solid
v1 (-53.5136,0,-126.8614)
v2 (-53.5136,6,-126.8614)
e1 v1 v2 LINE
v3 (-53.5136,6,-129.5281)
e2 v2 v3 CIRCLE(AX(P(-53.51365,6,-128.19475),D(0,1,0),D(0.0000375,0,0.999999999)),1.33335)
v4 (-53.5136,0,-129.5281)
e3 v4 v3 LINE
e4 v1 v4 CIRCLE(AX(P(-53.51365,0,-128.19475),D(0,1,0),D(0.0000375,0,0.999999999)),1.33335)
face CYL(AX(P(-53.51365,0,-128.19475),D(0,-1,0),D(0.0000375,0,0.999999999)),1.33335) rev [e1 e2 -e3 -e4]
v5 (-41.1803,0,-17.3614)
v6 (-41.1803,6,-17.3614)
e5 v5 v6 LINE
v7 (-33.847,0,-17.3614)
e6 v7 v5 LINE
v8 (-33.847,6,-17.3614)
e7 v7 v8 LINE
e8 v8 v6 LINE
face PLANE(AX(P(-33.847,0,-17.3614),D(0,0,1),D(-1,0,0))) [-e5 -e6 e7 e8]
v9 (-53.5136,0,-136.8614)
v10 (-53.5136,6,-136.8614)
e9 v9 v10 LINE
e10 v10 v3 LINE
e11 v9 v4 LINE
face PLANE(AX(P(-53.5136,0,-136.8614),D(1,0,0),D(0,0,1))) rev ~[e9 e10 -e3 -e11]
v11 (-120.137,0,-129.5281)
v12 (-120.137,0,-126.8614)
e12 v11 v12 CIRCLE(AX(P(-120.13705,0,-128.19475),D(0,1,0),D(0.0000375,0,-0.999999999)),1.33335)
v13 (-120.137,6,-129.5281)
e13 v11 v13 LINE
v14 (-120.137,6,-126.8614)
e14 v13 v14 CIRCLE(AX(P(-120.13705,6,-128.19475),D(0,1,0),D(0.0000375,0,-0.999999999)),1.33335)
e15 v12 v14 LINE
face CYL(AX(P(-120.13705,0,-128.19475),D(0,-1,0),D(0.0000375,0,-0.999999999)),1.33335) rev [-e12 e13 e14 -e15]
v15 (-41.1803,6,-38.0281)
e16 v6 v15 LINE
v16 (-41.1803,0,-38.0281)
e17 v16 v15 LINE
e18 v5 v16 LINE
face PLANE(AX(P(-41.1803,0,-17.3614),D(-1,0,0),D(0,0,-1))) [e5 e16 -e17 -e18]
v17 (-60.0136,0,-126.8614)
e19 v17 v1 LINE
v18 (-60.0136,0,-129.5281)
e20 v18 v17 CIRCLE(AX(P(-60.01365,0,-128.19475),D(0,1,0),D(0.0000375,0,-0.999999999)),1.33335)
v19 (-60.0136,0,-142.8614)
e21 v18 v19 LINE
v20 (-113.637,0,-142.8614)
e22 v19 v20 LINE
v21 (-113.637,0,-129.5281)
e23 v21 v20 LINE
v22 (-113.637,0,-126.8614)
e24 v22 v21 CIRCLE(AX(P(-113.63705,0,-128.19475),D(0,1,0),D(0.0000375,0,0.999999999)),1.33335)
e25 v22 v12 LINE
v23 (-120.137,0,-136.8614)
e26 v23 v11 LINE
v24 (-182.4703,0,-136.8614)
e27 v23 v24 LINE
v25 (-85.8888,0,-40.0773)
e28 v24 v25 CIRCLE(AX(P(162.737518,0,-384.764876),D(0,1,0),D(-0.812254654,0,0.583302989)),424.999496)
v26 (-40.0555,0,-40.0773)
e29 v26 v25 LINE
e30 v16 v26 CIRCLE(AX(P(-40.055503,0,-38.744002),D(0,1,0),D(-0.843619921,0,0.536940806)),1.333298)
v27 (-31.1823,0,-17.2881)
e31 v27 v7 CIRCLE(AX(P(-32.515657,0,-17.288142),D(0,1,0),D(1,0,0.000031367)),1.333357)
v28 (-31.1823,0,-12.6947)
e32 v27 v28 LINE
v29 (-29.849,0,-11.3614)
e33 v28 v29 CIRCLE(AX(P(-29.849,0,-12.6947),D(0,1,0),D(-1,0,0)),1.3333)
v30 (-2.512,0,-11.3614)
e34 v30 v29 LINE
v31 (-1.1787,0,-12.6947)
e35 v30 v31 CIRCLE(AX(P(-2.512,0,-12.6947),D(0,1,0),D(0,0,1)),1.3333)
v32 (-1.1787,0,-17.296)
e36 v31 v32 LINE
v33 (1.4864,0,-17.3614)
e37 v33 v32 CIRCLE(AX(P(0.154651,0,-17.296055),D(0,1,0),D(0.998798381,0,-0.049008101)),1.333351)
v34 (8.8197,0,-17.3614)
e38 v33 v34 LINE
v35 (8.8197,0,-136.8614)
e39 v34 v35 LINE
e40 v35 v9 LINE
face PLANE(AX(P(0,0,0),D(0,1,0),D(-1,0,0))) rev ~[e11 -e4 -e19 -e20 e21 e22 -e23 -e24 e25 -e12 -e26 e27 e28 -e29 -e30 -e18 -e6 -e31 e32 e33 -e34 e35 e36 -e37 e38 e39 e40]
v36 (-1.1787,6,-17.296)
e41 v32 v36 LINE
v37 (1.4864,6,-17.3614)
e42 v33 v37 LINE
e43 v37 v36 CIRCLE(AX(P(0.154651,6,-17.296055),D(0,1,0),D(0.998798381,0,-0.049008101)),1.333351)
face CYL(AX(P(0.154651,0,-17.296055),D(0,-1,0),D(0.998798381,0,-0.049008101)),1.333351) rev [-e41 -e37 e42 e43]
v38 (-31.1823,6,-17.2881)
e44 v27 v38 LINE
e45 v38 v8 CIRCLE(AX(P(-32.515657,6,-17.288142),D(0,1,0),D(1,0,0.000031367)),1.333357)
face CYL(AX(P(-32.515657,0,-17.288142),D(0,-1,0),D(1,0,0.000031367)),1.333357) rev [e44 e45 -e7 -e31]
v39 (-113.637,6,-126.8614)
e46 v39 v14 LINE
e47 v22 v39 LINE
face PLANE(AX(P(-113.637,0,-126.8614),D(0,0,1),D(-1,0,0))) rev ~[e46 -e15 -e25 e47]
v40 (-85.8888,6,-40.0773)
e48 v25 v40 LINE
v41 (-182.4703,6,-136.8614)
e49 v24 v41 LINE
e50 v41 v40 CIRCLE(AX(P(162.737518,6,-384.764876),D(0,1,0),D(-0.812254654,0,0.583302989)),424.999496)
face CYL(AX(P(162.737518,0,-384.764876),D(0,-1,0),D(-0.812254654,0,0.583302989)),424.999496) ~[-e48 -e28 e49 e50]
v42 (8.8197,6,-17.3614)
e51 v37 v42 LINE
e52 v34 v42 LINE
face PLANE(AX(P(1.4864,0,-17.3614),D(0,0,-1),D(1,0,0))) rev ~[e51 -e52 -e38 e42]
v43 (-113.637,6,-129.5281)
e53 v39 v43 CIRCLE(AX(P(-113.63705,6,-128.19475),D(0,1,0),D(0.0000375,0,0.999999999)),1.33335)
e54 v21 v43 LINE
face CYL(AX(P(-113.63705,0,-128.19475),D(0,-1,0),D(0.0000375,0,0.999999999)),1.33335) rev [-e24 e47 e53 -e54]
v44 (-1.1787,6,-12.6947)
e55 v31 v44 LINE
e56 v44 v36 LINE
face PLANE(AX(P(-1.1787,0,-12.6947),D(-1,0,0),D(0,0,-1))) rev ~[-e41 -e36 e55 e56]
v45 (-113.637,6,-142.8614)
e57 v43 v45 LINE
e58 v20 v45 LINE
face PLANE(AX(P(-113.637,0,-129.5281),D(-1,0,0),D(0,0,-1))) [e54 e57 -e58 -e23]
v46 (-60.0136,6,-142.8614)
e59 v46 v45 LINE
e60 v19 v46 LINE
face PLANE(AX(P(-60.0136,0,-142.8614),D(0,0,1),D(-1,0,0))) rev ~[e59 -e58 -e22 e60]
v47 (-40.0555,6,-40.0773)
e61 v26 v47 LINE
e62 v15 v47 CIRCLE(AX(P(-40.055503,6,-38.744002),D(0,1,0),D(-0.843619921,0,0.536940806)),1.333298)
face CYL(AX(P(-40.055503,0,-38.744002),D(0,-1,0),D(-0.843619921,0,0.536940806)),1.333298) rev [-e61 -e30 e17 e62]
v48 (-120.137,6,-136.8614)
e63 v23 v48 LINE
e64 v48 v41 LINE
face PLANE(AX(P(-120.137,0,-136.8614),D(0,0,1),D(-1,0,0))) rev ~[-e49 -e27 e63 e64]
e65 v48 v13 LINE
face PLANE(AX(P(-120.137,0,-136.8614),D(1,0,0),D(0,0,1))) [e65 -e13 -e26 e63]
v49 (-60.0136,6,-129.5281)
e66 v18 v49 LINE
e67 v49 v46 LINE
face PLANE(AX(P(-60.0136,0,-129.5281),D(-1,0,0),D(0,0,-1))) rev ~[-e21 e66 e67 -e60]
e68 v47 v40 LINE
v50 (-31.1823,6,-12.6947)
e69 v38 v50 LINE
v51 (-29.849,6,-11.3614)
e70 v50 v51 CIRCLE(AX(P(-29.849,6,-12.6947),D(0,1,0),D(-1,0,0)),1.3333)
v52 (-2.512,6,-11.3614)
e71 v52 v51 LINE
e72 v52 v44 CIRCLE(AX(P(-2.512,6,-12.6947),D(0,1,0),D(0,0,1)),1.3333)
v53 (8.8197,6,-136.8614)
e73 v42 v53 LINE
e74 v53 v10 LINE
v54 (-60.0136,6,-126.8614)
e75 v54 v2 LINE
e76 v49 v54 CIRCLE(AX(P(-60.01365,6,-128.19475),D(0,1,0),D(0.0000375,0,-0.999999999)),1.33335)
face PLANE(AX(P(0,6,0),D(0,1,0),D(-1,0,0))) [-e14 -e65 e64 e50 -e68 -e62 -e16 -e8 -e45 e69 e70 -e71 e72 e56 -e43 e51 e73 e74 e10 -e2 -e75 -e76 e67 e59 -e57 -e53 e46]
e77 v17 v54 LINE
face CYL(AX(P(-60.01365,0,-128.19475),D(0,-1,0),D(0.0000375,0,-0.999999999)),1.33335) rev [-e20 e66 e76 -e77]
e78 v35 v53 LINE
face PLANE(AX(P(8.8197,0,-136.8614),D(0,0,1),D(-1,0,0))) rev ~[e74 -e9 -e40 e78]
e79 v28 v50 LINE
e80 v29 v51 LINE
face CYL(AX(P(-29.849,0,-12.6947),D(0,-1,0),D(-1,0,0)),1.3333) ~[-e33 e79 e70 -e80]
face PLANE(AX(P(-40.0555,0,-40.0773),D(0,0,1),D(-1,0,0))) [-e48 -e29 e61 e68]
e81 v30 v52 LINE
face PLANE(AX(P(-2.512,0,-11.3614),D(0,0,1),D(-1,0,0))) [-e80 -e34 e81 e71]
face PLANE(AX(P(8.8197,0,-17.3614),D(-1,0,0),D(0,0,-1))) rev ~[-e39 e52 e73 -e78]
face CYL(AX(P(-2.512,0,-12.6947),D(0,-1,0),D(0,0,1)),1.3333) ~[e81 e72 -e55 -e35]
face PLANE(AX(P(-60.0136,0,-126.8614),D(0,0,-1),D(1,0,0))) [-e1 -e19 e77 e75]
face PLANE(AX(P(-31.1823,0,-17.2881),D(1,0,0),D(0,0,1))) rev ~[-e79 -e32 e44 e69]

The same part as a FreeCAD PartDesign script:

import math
import FreeCAD as App
import Part
import Sketcher
Q = App.Units.Quantity

doc = App.newDocument("Part")
body = doc.addObject("PartDesign::Body", "Body")

# Sketch on XZ plane
sketch1 = doc.addObject("Sketcher::SketchObject", "Sketch")
body.addObject(sketch1)
sketch1.AttachmentSupport = (doc.XZ_Plane, [""])
sketch1.MapMode = "FlatFace"
sketch1.addGeometry([
    Part.ArcOfCircle(Part.Circle(App.Vector(0.2, -17.3, 0), App.Vector(0, 0, 1), 1.3), math.radians(180), math.radians(357)),  # 0
    Part.LineSegment(App.Vector(1.5, -17.4, 0), App.Vector(8.8, -17.4, 0)),  # 1
    Part.LineSegment(App.Vector(8.8, -17.4, 0), App.Vector(8.8, -136.9, 0)),  # 2
    Part.LineSegment(App.Vector(8.8, -136.9, 0), App.Vector(-53.5, -136.9, 0)),  # 3
    Part.LineSegment(App.Vector(-53.5, -136.9, 0), App.Vector(-53.5, -129.5, 0)),  # 4
    Part.ArcOfCircle(Part.Circle(App.Vector(-53.5, -128.2, 0), App.Vector(0, 0, 1), 1.3), math.radians(-90), math.radians(90)),  # 5
    Part.LineSegment(App.Vector(-53.5, -126.9, 0), App.Vector(-60, -126.9, 0)),  # 6
    Part.ArcOfCircle(Part.Circle(App.Vector(-60, -128.2, 0), App.Vector(0, 0, 1), 1.3), math.radians(90), math.radians(270)),  # 7
    Part.LineSegment(App.Vector(-60, -129.5, 0), App.Vector(-60, -142.9, 0)),  # 8
    Part.LineSegment(App.Vector(-60, -142.9, 0), App.Vector(-113.6, -142.9, 0)),  # 9
    Part.LineSegment(App.Vector(-113.6, -142.9, 0), App.Vector(-113.6, -129.5, 0)),  # 10
    Part.ArcOfCircle(Part.Circle(App.Vector(-113.6, -128.2, 0), App.Vector(0, 0, 1), 1.3), math.radians(-90), math.radians(90)),  # 11
    Part.LineSegment(App.Vector(-113.6, -126.9, 0), App.Vector(-120.1, -126.9, 0)),  # 12
    Part.ArcOfCircle(Part.Circle(App.Vector(-120.1, -128.2, 0), App.Vector(0, 0, 1), 1.3), math.radians(90), math.radians(270)),  # 13
    Part.LineSegment(App.Vector(-120.1, -129.5, 0), App.Vector(-120.1, -136.9, 0)),  # 14
    Part.LineSegment(App.Vector(-120.1, -136.9, 0), App.Vector(-182.5, -136.9, 0)),  # 15
    Part.ArcOfCircle(Part.Circle(App.Vector(162.7, -384.8, 0), App.Vector(0, 0, 1), 425), math.radians(125.8), math.radians(144.32)),  # 16
    Part.LineSegment(App.Vector(-85.9, -40.1, 0), App.Vector(-40.1, -40.1, 0)),  # 17
    Part.ArcOfCircle(Part.Circle(App.Vector(-40.1, -38.7, 0), App.Vector(0, 0, 1), 1.3), math.radians(-90), math.radians(148)),  # 18
    Part.LineSegment(App.Vector(-41.2, -38, 0), App.Vector(-41.2, -17.4, 0)),  # 19
    Part.LineSegment(App.Vector(-41.2, -17.4, 0), App.Vector(-33.8, -17.4, 0)),  # 20
    Part.ArcOfCircle(Part.Circle(App.Vector(-32.5, -17.3, 0), App.Vector(0, 0, 1), 1.3), math.radians(-177), math.radians(0)),  # 21
    Part.LineSegment(App.Vector(-31.2, -17.3, 0), App.Vector(-31.2, -12.7, 0)),  # 22
    Part.ArcOfCircle(Part.Circle(App.Vector(-29.8, -12.7, 0), App.Vector(0, 0, 1), 1.3), math.radians(90), math.radians(180)),  # 23
    Part.LineSegment(App.Vector(-29.8, -11.4, 0), App.Vector(-2.5, -11.4, 0)),  # 24
    Part.ArcOfCircle(Part.Circle(App.Vector(-2.5, -12.7, 0), App.Vector(0, 0, 1), 1.3), math.radians(0), math.radians(90)),  # 25
    Part.LineSegment(App.Vector(-1.2, -12.7, 0), App.Vector(-1.2, -17.3, 0)),  # 26
], False)
sketch1.addConstraint([
    Sketcher.Constraint("Coincident", 0, 2, 1, 1),
    Sketcher.Constraint("Coincident", 1, 2, 2, 1),
    Sketcher.Constraint("Coincident", 2, 2, 3, 1),
    Sketcher.Constraint("Coincident", 3, 2, 4, 1),
    Sketcher.Constraint("Coincident", 4, 2, 5, 1),
    Sketcher.Constraint("Tangent", 5, 2, 6, 1),
    Sketcher.Constraint("Tangent", 6, 2, 7, 1),
    Sketcher.Constraint("Coincident", 7, 2, 8, 1),
    Sketcher.Constraint("Coincident", 8, 2, 9, 1),
    Sketcher.Constraint("Coincident", 9, 2, 10, 1),
    Sketcher.Constraint("Coincident", 10, 2, 11, 1),
    Sketcher.Constraint("Tangent", 11, 2, 12, 1),
    Sketcher.Constraint("Tangent", 12, 2, 13, 1),
    Sketcher.Constraint("Coincident", 13, 2, 14, 1),
    Sketcher.Constraint("Coincident", 14, 2, 15, 1),
    Sketcher.Constraint("Coincident", 15, 2, 16, 2),
    Sketcher.Constraint("Coincident", 16, 1, 17, 1),
    Sketcher.Constraint("Tangent", 17, 2, 18, 1),
    Sketcher.Constraint("Coincident", 18, 2, 19, 1),
    Sketcher.Constraint("Coincident", 19, 2, 20, 1),
    Sketcher.Constraint("Coincident", 20, 2, 21, 1),
    Sketcher.Constraint("Tangent", 21, 2, 22, 1),
    Sketcher.Constraint("Tangent", 22, 2, 23, 2),
    Sketcher.Constraint("Tangent", 23, 1, 24, 1),
    Sketcher.Constraint("Tangent", 24, 2, 25, 2),
    Sketcher.Constraint("Tangent", 25, 1, 26, 1),
    Sketcher.Constraint("Tangent", 26, 2, 0, 1),
    Sketcher.Constraint("Horizontal", 1),
    Sketcher.Constraint("Vertical", 2),
    Sketcher.Constraint("Horizontal", 3),
    Sketcher.Constraint("Vertical", 4),
    Sketcher.Constraint("Horizontal", 6),
    Sketcher.Constraint("Vertical", 8),
    Sketcher.Constraint("Horizontal", 9),
    Sketcher.Constraint("Vertical", 10),
    Sketcher.Constraint("Horizontal", 12),
    Sketcher.Constraint("Vertical", 14),
    Sketcher.Constraint("Horizontal", 15),
    Sketcher.Constraint("Horizontal", 17),
    Sketcher.Constraint("Vertical", 19),
    Sketcher.Constraint("Horizontal", 20),
    Sketcher.Constraint("Vertical", 22),
    Sketcher.Constraint("Horizontal", 24),
    Sketcher.Constraint("Vertical", 26),
    Sketcher.Constraint("Equal", 0, 5),
    Sketcher.Constraint("Equal", 5, 7),
    Sketcher.Constraint("Equal", 7, 11),
    Sketcher.Constraint("Equal", 11, 13),
    Sketcher.Constraint("Equal", 13, 18),
    Sketcher.Constraint("Equal", 18, 21),
    Sketcher.Constraint("Equal", 21, 23),
    Sketcher.Constraint("Equal", 23, 25),
    Sketcher.Constraint("Horizontal", 7, 3, 11, 3),
    Sketcher.Constraint("Horizontal", 3, 2, 14, 2),
    Sketcher.Constraint("Horizontal", 1, 2, 19, 2),
    Sketcher.Constraint("Vertical", 5, 3, 3, 2),
    Sketcher.Constraint("Vertical", 6, 2, 7, 2),
    Sketcher.Constraint("Vertical", 11, 3, 9, 2),
    Sketcher.Constraint("Vertical", 12, 2, 13, 2),
    Sketcher.Constraint("Equal", 6, 12),
    Sketcher.Constraint("Equal", 3, 15),
    Sketcher.Constraint("Equal", 1, 20),
    Sketcher.Constraint("Equal", 20, 4),
    Sketcher.Constraint("Radius", 16, Q("425 mm")),
    Sketcher.Constraint("DistanceX", 6, 2, 6, 1, Q("6.5 mm")),
    Sketcher.Constraint("DistanceY", 2, 2, 2, 1, Q("119.5 mm")),
    Sketcher.Constraint("DistanceY", 8, 2, 3, 2, Q("6 mm")),
    Sketcher.Constraint("DistanceY", 20, 2, 23, 1, Q("6 mm")),
    Sketcher.Constraint("Radius", 0, Q("1.3334 mm")),
    Sketcher.Constraint("DistanceX", 1, 1, 1, 2, Q("7.3333 mm")),
    Sketcher.Constraint("DistanceX", 3, 2, 3, 1, Q("62.3333 mm")),
    Sketcher.Constraint("DistanceX", 9, 2, 9, 1, Q("53.6234 mm")),
    Sketcher.Constraint("DistanceX", 17, 1, 17, 2, Q("45.8333 mm")),
    Sketcher.Constraint("DistanceY", 19, 1, 19, 2, Q("20.6667 mm")),
    Sketcher.Constraint("DistanceX", 24, 1, 24, 2, Q("27.337 mm")),
    Sketcher.Constraint("DistanceX", 18, 3, 0, 3, Q("40.21 mm")),
    Sketcher.Constraint("DistanceY", 18, 2, 21, 3, Q("20.74 mm")),
    Sketcher.Constraint("DistanceY", 26, 2, 26, 1, Q("4.6013 mm")),
    Sketcher.Constraint("DistanceY", 0, 3, -1, 1, Q("17.296 mm")),
    Sketcher.Constraint("DistanceX", 11, 3, -1, 1, Q("113.637 mm")),
])
pad1 = doc.addObject("PartDesign::Pad", "Pad")
body.addObject(pad1)
pad1.Profile = sketch1
pad1.Length = 6
pad1.Reversed = True

doc.recompute()
